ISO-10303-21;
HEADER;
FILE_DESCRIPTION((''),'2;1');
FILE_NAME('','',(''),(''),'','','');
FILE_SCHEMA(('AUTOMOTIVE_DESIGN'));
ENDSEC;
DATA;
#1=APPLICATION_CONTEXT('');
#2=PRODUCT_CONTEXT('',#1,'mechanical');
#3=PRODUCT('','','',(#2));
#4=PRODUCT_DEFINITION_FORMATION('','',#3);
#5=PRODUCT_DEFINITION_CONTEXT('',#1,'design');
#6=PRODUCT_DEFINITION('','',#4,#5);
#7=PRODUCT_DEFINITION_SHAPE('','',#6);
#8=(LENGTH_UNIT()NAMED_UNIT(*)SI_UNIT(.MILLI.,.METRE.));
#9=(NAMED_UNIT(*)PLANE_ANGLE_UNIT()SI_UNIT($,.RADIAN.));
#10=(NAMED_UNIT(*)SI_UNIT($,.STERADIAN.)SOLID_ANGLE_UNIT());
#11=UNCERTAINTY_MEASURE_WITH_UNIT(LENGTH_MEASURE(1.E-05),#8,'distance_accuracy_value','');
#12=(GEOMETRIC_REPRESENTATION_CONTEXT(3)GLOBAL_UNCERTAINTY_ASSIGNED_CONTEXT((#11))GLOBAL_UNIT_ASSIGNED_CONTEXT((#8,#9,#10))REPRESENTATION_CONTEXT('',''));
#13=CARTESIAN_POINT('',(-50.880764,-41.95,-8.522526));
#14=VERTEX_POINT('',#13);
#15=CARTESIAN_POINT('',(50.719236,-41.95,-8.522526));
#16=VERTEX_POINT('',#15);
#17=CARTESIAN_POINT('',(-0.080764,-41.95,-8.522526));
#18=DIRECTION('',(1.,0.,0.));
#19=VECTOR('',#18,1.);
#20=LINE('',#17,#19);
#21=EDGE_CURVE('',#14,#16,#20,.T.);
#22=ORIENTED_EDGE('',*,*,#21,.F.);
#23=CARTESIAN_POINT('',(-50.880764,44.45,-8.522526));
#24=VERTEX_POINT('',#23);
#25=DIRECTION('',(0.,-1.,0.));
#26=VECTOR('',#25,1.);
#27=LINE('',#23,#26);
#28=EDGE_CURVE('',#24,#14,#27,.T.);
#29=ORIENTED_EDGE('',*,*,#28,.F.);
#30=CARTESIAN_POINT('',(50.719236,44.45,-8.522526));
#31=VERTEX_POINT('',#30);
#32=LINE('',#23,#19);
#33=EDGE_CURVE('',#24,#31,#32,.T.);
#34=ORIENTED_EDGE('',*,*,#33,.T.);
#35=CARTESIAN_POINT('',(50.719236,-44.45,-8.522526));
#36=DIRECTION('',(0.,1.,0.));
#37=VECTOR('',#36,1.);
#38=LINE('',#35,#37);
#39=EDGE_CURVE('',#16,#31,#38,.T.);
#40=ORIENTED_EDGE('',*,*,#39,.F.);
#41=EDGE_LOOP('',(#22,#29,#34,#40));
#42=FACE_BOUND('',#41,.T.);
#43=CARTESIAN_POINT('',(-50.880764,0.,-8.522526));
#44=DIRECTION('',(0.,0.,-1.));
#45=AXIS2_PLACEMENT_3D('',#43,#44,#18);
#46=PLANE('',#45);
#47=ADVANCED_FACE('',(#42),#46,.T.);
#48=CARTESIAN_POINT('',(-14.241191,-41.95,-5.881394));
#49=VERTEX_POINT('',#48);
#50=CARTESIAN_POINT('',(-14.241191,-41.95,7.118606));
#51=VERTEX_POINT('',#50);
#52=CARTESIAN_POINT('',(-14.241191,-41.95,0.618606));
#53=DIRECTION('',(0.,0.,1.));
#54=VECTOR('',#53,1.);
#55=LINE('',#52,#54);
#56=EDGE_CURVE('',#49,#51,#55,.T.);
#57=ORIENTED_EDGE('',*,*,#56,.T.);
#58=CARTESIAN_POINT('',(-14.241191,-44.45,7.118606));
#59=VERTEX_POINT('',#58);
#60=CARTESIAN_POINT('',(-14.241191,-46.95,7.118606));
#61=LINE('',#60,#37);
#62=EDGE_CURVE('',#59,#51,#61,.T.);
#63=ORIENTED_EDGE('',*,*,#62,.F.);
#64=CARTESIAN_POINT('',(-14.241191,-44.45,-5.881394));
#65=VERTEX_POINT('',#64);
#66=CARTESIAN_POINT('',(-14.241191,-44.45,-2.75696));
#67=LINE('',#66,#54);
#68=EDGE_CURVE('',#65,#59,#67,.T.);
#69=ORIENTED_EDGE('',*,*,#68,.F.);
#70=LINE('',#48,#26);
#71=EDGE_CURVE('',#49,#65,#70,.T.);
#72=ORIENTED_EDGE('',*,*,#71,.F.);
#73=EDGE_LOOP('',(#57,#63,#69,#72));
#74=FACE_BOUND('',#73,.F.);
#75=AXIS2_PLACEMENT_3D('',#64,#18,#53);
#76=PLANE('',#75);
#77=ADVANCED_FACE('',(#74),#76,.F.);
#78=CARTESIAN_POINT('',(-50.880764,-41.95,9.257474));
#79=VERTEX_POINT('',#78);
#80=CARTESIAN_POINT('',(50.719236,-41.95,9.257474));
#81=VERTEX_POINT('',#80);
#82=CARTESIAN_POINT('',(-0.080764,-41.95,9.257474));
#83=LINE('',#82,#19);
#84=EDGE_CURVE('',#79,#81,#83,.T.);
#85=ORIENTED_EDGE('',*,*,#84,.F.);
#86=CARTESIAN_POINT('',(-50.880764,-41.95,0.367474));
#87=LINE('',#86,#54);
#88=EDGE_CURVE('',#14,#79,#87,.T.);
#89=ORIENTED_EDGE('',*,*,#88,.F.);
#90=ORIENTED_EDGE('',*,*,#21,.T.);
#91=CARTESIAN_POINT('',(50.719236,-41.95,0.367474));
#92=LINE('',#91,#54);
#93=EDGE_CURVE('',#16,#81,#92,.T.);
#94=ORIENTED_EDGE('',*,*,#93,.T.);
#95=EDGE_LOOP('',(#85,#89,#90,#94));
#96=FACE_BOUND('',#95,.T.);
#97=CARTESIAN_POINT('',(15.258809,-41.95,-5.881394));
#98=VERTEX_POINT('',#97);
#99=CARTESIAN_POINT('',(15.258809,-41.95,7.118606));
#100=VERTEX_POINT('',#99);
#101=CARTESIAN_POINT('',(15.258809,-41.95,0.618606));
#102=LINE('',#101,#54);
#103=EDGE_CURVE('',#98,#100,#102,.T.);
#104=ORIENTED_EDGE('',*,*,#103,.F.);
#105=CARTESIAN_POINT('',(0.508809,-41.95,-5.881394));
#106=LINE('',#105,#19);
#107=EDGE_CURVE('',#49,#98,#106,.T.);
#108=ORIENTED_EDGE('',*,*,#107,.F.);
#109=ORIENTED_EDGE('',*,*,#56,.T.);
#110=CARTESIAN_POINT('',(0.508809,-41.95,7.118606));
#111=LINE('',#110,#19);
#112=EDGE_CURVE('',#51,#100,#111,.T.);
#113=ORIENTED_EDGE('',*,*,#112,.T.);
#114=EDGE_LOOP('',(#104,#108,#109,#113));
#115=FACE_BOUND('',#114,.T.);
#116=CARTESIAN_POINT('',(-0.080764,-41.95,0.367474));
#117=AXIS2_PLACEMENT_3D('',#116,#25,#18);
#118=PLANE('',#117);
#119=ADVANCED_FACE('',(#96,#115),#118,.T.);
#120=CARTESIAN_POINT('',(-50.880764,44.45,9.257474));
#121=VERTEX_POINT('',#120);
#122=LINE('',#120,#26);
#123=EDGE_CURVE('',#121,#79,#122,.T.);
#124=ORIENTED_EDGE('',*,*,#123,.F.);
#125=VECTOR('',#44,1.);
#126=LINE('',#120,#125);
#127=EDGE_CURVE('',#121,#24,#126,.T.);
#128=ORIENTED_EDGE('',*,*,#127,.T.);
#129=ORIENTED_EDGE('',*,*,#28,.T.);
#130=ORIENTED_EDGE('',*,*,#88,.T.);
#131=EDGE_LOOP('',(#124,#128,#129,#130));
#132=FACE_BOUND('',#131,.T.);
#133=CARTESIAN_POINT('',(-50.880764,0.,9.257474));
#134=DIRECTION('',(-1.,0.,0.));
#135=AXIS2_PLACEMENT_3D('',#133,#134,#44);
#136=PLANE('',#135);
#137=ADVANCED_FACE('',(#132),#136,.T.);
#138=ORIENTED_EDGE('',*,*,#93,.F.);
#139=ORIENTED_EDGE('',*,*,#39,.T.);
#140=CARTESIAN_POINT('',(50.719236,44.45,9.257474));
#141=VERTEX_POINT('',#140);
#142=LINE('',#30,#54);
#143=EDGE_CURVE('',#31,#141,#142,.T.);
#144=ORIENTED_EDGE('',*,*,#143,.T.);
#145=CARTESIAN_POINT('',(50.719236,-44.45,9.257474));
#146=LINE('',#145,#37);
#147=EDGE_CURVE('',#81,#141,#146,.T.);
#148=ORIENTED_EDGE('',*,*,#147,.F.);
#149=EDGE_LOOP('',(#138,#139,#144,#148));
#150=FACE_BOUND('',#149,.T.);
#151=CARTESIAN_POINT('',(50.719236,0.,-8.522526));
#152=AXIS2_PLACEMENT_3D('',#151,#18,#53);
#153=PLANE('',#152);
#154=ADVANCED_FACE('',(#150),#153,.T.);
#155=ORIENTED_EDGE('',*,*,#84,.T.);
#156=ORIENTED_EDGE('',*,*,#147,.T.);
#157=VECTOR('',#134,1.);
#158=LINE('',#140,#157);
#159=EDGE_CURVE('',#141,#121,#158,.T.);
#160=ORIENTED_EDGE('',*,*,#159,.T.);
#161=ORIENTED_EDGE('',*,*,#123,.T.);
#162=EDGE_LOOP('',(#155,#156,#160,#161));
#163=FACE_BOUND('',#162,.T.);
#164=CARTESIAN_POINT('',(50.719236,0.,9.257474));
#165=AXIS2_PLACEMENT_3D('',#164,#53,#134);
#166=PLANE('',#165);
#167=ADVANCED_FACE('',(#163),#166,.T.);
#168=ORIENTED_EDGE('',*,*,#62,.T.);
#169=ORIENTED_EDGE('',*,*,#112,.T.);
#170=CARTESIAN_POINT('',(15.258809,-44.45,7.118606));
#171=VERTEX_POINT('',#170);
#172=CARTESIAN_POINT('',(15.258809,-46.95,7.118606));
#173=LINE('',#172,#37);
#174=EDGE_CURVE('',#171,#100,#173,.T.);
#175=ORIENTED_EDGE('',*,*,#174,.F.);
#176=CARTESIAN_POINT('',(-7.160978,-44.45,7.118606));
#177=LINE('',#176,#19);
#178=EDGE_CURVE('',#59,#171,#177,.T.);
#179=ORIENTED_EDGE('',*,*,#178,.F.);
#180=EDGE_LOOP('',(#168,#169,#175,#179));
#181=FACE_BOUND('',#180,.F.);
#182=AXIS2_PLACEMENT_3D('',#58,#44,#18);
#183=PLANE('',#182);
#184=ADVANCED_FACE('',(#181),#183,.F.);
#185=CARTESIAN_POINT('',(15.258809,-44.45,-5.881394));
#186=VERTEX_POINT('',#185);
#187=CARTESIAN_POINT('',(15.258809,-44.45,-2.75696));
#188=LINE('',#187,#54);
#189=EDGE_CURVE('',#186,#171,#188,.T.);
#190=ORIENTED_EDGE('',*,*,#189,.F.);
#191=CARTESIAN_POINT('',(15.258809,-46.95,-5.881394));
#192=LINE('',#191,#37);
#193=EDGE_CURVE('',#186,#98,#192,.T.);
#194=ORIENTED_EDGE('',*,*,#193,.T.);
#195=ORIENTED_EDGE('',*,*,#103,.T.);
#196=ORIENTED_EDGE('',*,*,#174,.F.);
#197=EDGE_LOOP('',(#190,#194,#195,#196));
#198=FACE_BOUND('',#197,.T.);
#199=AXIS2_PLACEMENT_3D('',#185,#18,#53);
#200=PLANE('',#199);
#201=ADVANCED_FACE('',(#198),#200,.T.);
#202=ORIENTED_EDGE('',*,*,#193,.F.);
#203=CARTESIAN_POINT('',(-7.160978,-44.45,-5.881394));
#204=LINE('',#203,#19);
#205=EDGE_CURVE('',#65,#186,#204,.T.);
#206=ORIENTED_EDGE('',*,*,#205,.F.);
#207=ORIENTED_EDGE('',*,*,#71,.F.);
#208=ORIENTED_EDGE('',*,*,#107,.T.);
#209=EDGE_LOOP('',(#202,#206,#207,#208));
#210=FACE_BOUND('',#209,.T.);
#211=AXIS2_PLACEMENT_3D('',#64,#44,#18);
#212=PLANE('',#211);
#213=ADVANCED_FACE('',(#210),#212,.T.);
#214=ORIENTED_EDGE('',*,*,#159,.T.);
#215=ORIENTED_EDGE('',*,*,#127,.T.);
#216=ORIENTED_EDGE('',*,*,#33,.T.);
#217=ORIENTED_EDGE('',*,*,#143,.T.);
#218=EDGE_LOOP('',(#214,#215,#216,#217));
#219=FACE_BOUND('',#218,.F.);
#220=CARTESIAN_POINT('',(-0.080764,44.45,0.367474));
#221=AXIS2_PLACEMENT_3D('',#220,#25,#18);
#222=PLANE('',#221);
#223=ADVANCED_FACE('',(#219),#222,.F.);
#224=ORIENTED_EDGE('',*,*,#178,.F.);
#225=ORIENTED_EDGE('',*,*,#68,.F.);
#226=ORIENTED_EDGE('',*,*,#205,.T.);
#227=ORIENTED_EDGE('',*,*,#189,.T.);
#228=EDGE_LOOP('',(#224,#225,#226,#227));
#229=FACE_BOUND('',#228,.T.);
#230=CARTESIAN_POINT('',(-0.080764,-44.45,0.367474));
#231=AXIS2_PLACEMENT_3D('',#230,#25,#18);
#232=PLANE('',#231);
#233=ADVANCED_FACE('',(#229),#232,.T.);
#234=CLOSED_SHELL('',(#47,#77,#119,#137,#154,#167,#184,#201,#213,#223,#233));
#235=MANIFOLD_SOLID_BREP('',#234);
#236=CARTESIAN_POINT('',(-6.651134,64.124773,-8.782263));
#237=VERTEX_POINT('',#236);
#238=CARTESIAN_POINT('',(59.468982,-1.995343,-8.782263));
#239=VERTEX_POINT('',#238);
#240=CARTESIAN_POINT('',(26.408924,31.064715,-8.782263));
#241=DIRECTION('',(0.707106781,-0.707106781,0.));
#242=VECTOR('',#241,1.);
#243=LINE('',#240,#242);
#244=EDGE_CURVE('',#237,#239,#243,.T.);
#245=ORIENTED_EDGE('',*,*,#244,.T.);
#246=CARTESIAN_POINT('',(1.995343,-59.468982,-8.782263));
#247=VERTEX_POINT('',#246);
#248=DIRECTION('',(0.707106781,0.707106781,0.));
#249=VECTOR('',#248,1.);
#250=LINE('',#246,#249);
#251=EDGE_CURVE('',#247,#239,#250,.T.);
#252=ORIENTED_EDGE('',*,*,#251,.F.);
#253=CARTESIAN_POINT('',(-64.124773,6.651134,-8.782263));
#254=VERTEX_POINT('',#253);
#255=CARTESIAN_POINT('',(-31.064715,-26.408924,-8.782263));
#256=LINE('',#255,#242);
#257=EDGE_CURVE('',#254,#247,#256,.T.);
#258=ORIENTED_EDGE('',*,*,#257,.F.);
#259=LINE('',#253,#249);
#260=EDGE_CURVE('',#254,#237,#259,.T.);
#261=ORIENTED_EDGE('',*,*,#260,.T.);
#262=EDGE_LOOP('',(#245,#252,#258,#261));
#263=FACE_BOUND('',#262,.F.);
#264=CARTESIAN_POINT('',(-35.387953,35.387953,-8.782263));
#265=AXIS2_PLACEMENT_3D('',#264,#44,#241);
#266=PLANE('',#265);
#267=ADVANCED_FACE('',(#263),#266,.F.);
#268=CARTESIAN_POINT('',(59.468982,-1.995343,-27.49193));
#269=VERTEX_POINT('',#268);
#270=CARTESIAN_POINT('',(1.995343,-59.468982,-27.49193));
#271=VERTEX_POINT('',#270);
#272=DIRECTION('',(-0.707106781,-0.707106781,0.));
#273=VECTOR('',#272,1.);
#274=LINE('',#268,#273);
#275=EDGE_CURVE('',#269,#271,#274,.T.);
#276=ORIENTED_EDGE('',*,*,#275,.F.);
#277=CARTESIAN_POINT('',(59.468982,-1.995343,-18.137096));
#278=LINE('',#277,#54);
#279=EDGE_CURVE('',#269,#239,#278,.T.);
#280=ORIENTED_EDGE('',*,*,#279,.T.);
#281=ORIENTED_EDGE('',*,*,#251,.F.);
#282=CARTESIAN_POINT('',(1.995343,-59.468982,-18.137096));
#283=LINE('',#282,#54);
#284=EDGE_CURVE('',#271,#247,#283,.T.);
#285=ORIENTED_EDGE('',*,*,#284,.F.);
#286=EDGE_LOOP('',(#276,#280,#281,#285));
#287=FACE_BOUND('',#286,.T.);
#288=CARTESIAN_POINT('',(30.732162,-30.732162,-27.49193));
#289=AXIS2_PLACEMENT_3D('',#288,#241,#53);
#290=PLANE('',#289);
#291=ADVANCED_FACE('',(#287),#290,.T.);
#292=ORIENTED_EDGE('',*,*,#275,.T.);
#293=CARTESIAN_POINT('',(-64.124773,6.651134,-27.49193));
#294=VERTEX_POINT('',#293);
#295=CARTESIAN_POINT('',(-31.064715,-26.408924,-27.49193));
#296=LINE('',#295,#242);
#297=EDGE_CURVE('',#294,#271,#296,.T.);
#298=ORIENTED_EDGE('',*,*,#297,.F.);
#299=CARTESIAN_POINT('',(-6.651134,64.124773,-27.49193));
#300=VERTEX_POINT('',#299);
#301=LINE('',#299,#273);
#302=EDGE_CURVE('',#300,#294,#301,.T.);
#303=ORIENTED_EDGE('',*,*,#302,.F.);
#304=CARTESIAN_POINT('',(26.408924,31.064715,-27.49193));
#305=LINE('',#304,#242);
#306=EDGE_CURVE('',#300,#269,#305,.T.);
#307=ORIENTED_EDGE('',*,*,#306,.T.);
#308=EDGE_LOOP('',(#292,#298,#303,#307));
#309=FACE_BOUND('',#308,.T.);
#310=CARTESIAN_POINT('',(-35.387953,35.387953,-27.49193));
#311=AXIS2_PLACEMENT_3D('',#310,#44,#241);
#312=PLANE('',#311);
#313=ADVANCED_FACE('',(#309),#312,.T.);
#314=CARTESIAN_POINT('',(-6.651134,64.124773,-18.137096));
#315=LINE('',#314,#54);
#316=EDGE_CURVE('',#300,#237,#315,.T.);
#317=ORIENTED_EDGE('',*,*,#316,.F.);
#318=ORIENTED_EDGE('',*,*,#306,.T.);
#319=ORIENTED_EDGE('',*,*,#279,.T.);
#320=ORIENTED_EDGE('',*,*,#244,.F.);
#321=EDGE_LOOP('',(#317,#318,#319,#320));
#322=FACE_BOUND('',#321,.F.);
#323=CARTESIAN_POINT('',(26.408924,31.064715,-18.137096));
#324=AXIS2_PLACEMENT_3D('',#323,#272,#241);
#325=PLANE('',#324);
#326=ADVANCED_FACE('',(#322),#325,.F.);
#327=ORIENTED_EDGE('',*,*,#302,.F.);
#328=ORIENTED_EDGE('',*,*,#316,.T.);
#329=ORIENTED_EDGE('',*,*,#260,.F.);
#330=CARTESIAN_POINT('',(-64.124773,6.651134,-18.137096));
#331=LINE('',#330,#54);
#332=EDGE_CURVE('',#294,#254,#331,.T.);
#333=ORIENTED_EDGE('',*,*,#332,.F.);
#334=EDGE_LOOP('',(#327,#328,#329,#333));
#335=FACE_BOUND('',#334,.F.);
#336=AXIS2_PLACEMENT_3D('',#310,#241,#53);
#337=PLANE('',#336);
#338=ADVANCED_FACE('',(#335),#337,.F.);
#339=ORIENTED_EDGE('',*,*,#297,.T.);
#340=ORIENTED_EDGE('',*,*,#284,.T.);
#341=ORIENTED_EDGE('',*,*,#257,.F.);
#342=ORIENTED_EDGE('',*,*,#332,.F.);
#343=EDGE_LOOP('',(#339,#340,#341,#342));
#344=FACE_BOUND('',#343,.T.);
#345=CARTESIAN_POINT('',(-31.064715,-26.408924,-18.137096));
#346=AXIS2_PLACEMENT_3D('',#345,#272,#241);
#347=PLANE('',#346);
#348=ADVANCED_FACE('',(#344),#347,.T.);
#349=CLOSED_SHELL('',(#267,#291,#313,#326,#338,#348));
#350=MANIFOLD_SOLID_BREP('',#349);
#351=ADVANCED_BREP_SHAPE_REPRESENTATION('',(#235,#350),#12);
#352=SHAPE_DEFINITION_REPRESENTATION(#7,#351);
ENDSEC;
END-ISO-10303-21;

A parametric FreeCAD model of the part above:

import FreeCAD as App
import Part
import Sketcher
Q = App.Units.Quantity


def add_polygon(sketch, points):
    """Adds a closed chain of lines whose ends are joined by coincident constraints."""
    first, n = sketch.GeometryCount, len(points)
    for a, b in zip(points, points[1:] + points[:1]):
        sketch.addGeometry(Part.LineSegment(App.Vector(*a, 0), App.Vector(*b, 0)), False)
    for i in range(n):
        sketch.addConstraint(Sketcher.Constraint("Coincident", first + i, 2, first + (i + 1) % n, 1))

doc = App.newDocument("Part")
params = doc.addObject("Spreadsheet::Sheet", "Params")
for row, (alias, value) in enumerate([
    ("sketch1_width", "4 in"),
    ("sketch1_height", "0.7 in"),
    ("pad1_length", "3.5 in"),
    ("sketch2_width", "4 in"),
    ("sketch2_height", "0.7 in"),
    ("pocket1_length", "5 mm"),
    ("pad2_length", "3.2 in"),
], start=1):
    params.set(f"A{row}", alias)
    params.set(f"B{row}", "=" + value)
    params.setAlias(f"B{row}", alias)

body = doc.addObject("PartDesign::Body", "Body")

sketch1 = body.newObject("Sketcher::SketchObject", "Sketch")
sketch1.AttachmentSupport = (doc.getObject("XZ_Plane"), [""])
sketch1.MapMode = "FlatFace"
add_polygon(sketch1, [(50.719236, 9.257474), (-50.880764, 9.257474), (-50.880764, -8.522526), (50.719236, -8.522526)])
sketch1.addConstraint([
    Sketcher.Constraint("Horizontal", 0),
    Sketcher.Constraint("Vertical", 1),
    Sketcher.Constraint("Horizontal", 2),
    Sketcher.Constraint("Vertical", 3),
    Sketcher.Constraint("DistanceX", 0, 2, 0, 1, Q("4 in")),
    Sketcher.Constraint("DistanceY", 1, 2, 1, 1, Q("0.7 in")),
    Sketcher.Constraint("DistanceX", 0, 2, -1, 1, 50.880764),
    Sketcher.Constraint("DistanceY", -1, 1, 0, 2, 9.257474),
])
sketch1.setExpression("Constraints[8]", "Params.sketch1_width")
sketch1.setExpression("Constraints[9]", "Params.sketch1_height")
pad1 = body.newObject("PartDesign::Pad", "Pad")
pad1.Profile = sketch1
pad1.setExpression("Length", "Params.pad1_length")
pad1.Midplane = True

sketch2 = body.newObject("Sketcher::SketchObject", "Sketch001")
sketch2.AttachmentSupport = (doc.getObject("XZ_Plane"), [""])
sketch2.MapMode = "FlatFace"
sketch2.AttachmentOffset = App.Placement(App.Vector(0, 0, 1.75 * 25.4), App.Rotation())
add_polygon(sketch2, [(-50.880764, 9.257474), (-50.880764, -8.522526), (50.719236, -8.522526), (50.719236, 9.257474)])
add_polygon(sketch2, [(15.258809, -5.881394), (-14.241191, -5.881394), (-14.241191, 7.118606), (15.258809, 7.118606)])
sketch2.addConstraint([
    Sketcher.Constraint("Vertical", 0),
    Sketcher.Constraint("Horizontal", 1),
    Sketcher.Constraint("Vertical", 2),
    Sketcher.Constraint("Horizontal", 3),
    Sketcher.Constraint("Horizontal", 4),
    Sketcher.Constraint("Vertical", 5),
    Sketcher.Constraint("Horizontal", 6),
    Sketcher.Constraint("Vertical", 7),
    Sketcher.Constraint("DistanceX", 1, 1, 1, 2, Q("4 in")),
    Sketcher.Constraint("DistanceY", 0, 2, 0, 1, Q("0.7 in")),
    Sketcher.Constraint("DistanceX", 4, 2, 4, 1, 29.5),
    Sketcher.Constraint("DistanceY", 5, 1, 5, 2, 13.0),
    Sketcher.Constraint("DistanceX", 4, 2, -1, 1, 14.241191),
    Sketcher.Constraint("DistanceX", 0, 2, -1, 1, 50.880764),
    Sketcher.Constraint("DistanceY", 0, 2, -1, 1, 8.522526),
    Sketcher.Constraint("DistanceY", 4, 2, -1, 1, 5.881394),
])
sketch2.setExpression("Constraints[16]", "Params.sketch2_width")
sketch2.setExpression("Constraints[17]", "Params.sketch2_height")
pocket1 = body.newObject("PartDesign::Pocket", "Pocket")
pocket1.Profile = sketch2
pocket1.setExpression("Length", "Params.pocket1_length")
pocket1.Midplane = True
body2 = doc.addObject("PartDesign::Body", "Body001")

sketch3 = body2.newObject("Sketcher::SketchObject", "Sketch002")
sketch3.Placement = App.Placement(App.Vector(0, 0, 0), App.Rotation(App.Vector(0.707106781, -0.707106781, 0), App.Vector(0, 0, 0.999999999), App.Vector(-0.707106781, -0.707106781, 0), "ZXY"))
add_polygon(sketch3, [(-50.046124, -8.782263), (-50.046124, -27.49193), (43.461841, -27.49193), (43.461841, -8.782263)])
sketch3.addConstraint([
    Sketcher.Constraint("Vertical", 0),
    Sketcher.Constraint("Horizontal", 1),
    Sketcher.Constraint("Vertical", 2),
    Sketcher.Constraint("Horizontal", 3),
    Sketcher.Constraint("DistanceX", 1, 1, 1, 2, 93.507964),
    Sketcher.Constraint("DistanceY", 0, 2, 0, 1, 18.709667),
    Sketcher.Constraint("DistanceY", 0, 2, -1, 1, 27.49193),
    Sketcher.Constraint("DistanceX", -1, 1, 1, 2, 43.461841),
])
pad2 = body2.newObject("PartDesign::Pad", "Pad001")
pad2.Profile = sketch3
pad2.setExpression("Length", "Params.pad2_length")
pad2.Midplane = True

doc.recompute()
